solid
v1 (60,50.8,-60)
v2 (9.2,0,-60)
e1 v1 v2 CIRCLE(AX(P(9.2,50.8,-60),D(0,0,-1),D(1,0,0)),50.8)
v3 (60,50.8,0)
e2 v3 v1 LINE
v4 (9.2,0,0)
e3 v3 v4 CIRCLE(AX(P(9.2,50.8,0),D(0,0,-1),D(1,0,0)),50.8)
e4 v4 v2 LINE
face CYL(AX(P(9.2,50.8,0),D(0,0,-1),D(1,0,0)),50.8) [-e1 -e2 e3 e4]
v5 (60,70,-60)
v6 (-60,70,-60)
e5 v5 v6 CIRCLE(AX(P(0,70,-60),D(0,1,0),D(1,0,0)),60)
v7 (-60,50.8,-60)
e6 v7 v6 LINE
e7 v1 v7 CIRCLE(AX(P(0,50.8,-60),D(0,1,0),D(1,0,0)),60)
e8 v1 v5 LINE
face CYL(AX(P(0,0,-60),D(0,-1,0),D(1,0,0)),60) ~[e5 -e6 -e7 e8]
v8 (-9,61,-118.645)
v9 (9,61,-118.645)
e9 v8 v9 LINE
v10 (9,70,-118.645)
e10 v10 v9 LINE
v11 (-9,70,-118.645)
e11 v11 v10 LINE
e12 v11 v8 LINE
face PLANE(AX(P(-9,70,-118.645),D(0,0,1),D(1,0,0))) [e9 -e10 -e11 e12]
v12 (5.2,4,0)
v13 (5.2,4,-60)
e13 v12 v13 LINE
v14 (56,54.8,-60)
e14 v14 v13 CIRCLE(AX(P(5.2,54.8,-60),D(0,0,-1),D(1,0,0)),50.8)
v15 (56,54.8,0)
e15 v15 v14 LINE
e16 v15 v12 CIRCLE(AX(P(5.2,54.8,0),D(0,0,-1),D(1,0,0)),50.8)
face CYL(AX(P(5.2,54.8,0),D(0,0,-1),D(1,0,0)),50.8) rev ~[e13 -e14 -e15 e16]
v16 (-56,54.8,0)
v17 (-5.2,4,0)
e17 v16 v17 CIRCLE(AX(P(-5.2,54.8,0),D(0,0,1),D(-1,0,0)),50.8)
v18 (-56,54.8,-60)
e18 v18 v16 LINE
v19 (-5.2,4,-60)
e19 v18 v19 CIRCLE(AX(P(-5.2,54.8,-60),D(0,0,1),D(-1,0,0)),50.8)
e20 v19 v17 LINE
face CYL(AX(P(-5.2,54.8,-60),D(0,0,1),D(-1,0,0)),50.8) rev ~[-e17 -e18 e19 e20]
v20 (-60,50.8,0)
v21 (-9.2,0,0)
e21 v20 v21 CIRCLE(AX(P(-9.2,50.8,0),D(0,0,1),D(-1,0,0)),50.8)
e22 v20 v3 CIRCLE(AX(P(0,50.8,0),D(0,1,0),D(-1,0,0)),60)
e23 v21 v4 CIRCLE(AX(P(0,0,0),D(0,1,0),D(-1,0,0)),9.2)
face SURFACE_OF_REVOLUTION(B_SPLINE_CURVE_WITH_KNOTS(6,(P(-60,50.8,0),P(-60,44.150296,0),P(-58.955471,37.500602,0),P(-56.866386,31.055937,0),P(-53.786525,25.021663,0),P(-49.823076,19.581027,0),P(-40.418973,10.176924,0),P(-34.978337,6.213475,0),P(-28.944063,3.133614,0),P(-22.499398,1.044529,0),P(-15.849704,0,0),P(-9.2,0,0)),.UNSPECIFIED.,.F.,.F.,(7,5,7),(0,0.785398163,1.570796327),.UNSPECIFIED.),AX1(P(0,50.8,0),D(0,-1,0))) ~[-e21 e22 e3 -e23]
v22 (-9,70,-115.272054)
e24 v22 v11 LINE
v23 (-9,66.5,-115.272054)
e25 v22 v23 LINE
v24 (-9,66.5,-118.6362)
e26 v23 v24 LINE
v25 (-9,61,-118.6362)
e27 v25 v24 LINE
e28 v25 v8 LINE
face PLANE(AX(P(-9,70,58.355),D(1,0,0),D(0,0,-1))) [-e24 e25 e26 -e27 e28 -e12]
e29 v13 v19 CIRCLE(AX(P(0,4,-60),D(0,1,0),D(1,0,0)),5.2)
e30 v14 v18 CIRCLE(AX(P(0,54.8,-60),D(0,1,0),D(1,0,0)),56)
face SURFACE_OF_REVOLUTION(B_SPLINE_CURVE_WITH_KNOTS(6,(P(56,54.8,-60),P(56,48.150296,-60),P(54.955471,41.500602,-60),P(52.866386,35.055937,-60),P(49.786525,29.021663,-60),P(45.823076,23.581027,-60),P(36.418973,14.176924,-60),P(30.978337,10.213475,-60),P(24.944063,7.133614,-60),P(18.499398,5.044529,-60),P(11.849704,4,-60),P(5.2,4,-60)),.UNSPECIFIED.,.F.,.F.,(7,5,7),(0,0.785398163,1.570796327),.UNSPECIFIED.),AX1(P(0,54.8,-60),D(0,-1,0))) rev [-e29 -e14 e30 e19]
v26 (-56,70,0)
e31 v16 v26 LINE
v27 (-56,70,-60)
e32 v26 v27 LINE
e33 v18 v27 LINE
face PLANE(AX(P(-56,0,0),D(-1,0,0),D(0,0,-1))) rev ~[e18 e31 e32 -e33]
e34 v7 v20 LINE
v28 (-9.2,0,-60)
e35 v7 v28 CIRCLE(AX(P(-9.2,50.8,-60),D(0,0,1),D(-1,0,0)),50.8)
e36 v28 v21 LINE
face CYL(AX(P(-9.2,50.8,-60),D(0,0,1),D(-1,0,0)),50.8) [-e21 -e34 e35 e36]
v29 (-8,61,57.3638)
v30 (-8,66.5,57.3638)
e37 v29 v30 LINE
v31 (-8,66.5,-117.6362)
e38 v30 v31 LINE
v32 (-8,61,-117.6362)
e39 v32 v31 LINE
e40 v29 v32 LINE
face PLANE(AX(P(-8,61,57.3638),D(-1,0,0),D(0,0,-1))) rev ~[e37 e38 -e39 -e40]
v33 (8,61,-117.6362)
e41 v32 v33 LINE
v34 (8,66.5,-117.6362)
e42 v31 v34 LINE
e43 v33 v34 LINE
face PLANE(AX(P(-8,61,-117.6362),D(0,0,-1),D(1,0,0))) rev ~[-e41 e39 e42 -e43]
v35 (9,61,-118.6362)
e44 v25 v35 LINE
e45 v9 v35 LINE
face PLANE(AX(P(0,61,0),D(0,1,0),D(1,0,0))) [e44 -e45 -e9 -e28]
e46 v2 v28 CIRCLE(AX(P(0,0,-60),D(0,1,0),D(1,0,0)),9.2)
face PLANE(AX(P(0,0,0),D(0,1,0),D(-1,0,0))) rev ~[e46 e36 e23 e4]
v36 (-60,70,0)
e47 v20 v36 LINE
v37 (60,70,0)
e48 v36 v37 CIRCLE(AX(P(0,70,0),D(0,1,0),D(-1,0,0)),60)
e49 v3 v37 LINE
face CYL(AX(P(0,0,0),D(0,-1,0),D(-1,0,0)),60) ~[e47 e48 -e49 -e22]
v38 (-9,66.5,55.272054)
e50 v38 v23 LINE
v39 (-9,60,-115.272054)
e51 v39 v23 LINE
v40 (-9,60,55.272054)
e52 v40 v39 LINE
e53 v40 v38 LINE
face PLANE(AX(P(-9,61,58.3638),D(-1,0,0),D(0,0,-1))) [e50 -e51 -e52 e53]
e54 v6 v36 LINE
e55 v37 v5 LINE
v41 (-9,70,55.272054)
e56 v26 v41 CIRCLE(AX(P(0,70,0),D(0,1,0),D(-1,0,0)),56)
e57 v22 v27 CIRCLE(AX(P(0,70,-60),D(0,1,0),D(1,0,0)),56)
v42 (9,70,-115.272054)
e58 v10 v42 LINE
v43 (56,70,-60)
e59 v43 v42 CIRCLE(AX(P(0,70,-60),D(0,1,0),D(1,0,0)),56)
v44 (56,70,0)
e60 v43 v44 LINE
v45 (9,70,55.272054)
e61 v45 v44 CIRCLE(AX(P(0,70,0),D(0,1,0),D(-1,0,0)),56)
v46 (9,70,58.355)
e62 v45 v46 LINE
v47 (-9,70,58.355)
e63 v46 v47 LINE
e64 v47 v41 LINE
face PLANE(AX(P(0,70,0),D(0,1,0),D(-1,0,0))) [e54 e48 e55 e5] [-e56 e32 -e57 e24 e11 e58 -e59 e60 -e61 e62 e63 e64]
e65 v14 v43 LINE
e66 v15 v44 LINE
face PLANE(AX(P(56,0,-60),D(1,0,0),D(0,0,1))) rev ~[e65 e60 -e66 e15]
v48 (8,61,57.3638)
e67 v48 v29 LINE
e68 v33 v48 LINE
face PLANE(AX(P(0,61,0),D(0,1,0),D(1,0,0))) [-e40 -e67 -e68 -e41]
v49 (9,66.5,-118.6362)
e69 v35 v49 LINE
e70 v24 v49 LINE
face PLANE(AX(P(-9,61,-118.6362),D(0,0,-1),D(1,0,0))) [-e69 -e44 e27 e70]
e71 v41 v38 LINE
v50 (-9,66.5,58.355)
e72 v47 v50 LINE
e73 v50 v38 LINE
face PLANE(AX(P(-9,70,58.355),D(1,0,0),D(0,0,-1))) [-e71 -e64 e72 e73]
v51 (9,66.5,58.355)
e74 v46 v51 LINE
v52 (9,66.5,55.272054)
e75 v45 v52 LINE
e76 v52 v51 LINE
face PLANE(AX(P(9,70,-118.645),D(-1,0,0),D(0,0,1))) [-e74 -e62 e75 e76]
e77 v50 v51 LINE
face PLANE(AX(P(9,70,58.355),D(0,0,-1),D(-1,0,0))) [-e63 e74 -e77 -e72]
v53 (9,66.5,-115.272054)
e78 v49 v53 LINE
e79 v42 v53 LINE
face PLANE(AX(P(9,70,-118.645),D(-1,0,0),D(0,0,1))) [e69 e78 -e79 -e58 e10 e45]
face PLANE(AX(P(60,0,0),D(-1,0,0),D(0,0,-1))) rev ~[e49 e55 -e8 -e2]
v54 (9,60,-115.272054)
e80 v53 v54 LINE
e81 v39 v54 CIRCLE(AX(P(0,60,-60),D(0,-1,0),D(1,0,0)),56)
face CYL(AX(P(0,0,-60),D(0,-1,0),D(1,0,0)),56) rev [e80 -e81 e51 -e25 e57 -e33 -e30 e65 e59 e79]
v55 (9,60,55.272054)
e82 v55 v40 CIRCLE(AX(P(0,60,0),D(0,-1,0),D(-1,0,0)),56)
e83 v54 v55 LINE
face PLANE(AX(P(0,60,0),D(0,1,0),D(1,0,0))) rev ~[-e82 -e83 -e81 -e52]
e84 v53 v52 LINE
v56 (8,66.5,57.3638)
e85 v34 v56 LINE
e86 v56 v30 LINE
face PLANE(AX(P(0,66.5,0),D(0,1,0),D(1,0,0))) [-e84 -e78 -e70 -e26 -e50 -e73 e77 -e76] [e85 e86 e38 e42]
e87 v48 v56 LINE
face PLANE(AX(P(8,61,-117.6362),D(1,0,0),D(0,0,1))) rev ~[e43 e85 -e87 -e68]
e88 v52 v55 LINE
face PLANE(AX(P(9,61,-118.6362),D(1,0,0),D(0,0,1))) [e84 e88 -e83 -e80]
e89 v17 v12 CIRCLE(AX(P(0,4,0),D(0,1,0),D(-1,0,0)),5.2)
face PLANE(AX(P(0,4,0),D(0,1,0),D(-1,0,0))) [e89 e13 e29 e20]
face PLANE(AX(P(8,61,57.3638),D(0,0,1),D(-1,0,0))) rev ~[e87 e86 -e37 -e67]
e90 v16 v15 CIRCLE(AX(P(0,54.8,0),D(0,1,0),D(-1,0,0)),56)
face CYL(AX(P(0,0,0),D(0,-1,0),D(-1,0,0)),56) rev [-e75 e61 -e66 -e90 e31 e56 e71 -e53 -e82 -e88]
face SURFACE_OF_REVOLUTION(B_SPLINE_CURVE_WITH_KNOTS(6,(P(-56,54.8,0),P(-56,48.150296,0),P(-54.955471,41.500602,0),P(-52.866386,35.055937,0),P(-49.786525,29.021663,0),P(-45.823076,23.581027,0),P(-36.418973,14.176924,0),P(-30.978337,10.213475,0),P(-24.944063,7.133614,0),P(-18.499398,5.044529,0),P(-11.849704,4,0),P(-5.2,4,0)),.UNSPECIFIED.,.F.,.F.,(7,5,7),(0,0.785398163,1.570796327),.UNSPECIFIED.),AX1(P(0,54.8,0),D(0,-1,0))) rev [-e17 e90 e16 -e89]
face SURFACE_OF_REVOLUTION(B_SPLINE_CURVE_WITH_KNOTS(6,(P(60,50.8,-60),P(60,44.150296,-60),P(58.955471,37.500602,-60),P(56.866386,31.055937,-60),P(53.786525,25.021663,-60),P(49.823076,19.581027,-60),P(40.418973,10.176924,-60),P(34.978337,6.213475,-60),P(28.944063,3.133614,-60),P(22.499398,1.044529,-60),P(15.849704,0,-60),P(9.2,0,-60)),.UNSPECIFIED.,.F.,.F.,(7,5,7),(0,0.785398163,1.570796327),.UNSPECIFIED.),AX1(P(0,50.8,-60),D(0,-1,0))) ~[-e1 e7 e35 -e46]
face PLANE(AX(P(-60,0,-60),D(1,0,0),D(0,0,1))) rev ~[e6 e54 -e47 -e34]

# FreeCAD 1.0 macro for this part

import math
import FreeCAD as App
import Part
import Sketcher

V = App.Vector


def edges_at(feature, points):
    """Names of the edges that pass closest to the given points."""
    edges = feature.Shape.Edges
    near = lambda p: min(range(len(edges)), key=lambda i: edges[i].distToShape(Part.Vertex(*p))[0])
    return sorted({f"Edge{near(p) + 1}" for p in points})


def add_polygon(sketch, points):
    """Adds a closed chain of lines whose ends are joined by coincident constraints."""
    first, n = sketch.GeometryCount, len(points)
    for a, b in zip(points, points[1:] + points[:1]):
        sketch.addGeometry(Part.LineSegment(App.Vector(*a, 0), App.Vector(*b, 0)), False)
    for i in range(n):
        sketch.addConstraint(Sketcher.Constraint("Coincident", first + i, 2, first + (i + 1) % n, 1))

doc = App.newDocument("Part")
body = doc.addObject("PartDesign::Body", "Body")

sketch1 = body.newObject("Sketcher::SketchObject", "Sketch")
sketch1.AttachmentSupport = (doc.getObject("XZ_Plane"), [""])
sketch1.MapMode = "FlatFace"
sketch1.addGeometry(Part.ArcOfCircle(Part.Circle(V(0, 0, 0), V(0, 0, 1), 60), math.radians(0), math.radians(180)), False)
sketch1.addGeometry(Part.LineSegment(V(60, 0, 0), V(60, -60, 0)), False)
sketch1.addGeometry(Part.ArcOfCircle(Part.Circle(V(0, -60, 0), V(0, 0, 1), 60), math.radians(180), math.radians(360)), False)
sketch1.addGeometry(Part.LineSegment(V(-60, -60, 0), V(-60, 0, 0)), False)
sketch1.addGeometry(Part.ArcOfCircle(Part.Circle(V(0, 0, 0), V(0, 0, 1), 56), math.radians(0), math.radians(180)), False)
sketch1.addGeometry(Part.LineSegment(V(-56, 0, 0), V(-56, -60, 0)), False)
sketch1.addGeometry(Part.ArcOfCircle(Part.Circle(V(0, -60, 0), V(0, 0, 1), 56), math.radians(180), math.radians(360)), False)
sketch1.addGeometry(Part.LineSegment(V(56, -60, 0), V(56, 0, 0)), False)
sketch1.addConstraint(Sketcher.Constraint("Tangent", 0, 1, 1, 1))
sketch1.addConstraint(Sketcher.Constraint("Tangent", 1, 2, 2, 2))
sketch1.addConstraint(Sketcher.Constraint("Tangent", 2, 1, 3, 1))
sketch1.addConstraint(Sketcher.Constraint("Tangent", 3, 2, 0, 2))
sketch1.addConstraint(Sketcher.Constraint("Tangent", 4, 2, 5, 1))
sketch1.addConstraint(Sketcher.Constraint("Tangent", 5, 2, 6, 1))
sketch1.addConstraint(Sketcher.Constraint("Tangent", 6, 2, 7, 1))
sketch1.addConstraint(Sketcher.Constraint("Tangent", 7, 2, 4, 1))
sketch1.addConstraint(Sketcher.Constraint("Vertical", 1))
sketch1.addConstraint(Sketcher.Constraint("Vertical", 3))
sketch1.addConstraint(Sketcher.Constraint("Vertical", 5))
sketch1.addConstraint(Sketcher.Constraint("Vertical", 7))
sketch1.addConstraint(Sketcher.Constraint("Coincident", 0, 3, -1, 1))
sketch1.addConstraint(Sketcher.Constraint("Coincident", 4, 3, -1, 1))
sketch1.addConstraint(Sketcher.Constraint("Horizontal", 6, 3, 1, 2))
sketch1.addConstraint(Sketcher.Constraint("Radius", 0, 60.0))
sketch1.addConstraint(Sketcher.Constraint("DistanceY", 1, 2, 1, 1, 60.0))
sketch1.addConstraint(Sketcher.Constraint("Radius", 4, 56.0))
pad1 = body.newObject("PartDesign::Pad", "Pad")
pad1.Profile = sketch1
pad1.Length = 70
pad1.Reversed = True

sketch2 = body.newObject("Sketcher::SketchObject", "Sketch001")
sketch2.AttachmentSupport = (doc.getObject("XZ_Plane"), [""])
sketch2.MapMode = "FlatFace"
sketch2.addGeometry(Part.LineSegment(V(-56, -60, 0), V(-56, 0, 0)), False)
sketch2.addGeometry(Part.ArcOfCircle(Part.Circle(V(0, 0, 0), V(0, 0, 1), 56), math.radians(0), math.radians(180)), False)
sketch2.addGeometry(Part.LineSegment(V(56, 0, 0), V(56, -60, 0)), False)
sketch2.addGeometry(Part.ArcOfCircle(Part.Circle(V(0, -60, 0), V(0, 0, 1), 56), math.radians(180), math.radians(360)), False)
sketch2.addConstraint(Sketcher.Constraint("Tangent", 0, 2, 1, 2))
sketch2.addConstraint(Sketcher.Constraint("Tangent", 1, 1, 2, 1))
sketch2.addConstraint(Sketcher.Constraint("Tangent", 2, 2, 3, 2))
sketch2.addConstraint(Sketcher.Constraint("Tangent", 3, 1, 0, 1))
sketch2.addConstraint(Sketcher.Constraint("Vertical", 0))
sketch2.addConstraint(Sketcher.Constraint("Vertical", 2))
sketch2.addConstraint(Sketcher.Constraint("Coincident", 1, 3, -1, 1))
sketch2.addConstraint(Sketcher.Constraint("DistanceY", 0, 1, 0, 2, 60.0))
sketch2.addConstraint(Sketcher.Constraint("Radius", 1, 56.0))
pad2 = body.newObject("PartDesign::Pad", "Pad001")
pad2.Profile = sketch2
pad2.Length = 4
pad2.Reversed = True
doc.recompute()

fillet = body.newObject("PartDesign::Fillet", "Fillet")
fillet.Base = (pad2, edges_at(pad2, [
    (0, 4, 56),
    (-56, 4, -30),
    (0, 4, -116),
    (56, 4, -30),
    (0, 0, 60),
    (60, 0, -30),
    (0, 0, -120),
    (-60, 0, -30),
]))
fillet.Radius = 50.8

sketch3 = body.newObject("Sketcher::SketchObject", "Sketch002")
sketch3.AttachmentSupport = (doc.getObject("XZ_Plane"), [""])
sketch3.MapMode = "FlatFace"
sketch3.AttachmentOffset = App.Placement(V(0, 0, -70), App.Rotation())
add_polygon(sketch3, [(9, -119), (-9, -119), (-9, 58), (9, 58)])
sketch3.addConstraint(Sketcher.Constraint("Horizontal", 0))
sketch3.addConstraint(Sketcher.Constraint("Vertical", 1))
sketch3.addConstraint(Sketcher.Constraint("Horizontal", 2))
sketch3.addConstraint(Sketcher.Constraint("Vertical", 3))
sketch3.addConstraint(Sketcher.Constraint("DistanceX", 0, 2, 0, 1, 18.0))
sketch3.addConstraint(Sketcher.Constraint("DistanceY", 1, 1, 1, 2, 177.0))
sketch3.addConstraint(Sketcher.Constraint("DistanceX", 0, 2, -1, 1, 9.0))
sketch3.addConstraint(Sketcher.Constraint("DistanceY", 0, 2, -1, 1, 118.645))
pad3 = body.newObject("PartDesign::Pad", "Pad002")
pad3.Profile = sketch3
pad3.Length = 10

sketch4 = body.newObject("Sketcher::SketchObject", "Sketch003")
sketch4.AttachmentSupport = (doc.getObject("XZ_Plane"), [""])
sketch4.MapMode = "FlatFace"
sketch4.AttachmentOffset = App.Placement(V(0, 0, -70), App.Rotation())
add_polygon(sketch4, [(9, -119), (-9, -119), (-9, 58), (9, 58)])
sketch4.addConstraint(Sketcher.Constraint("Horizontal", 0))
sketch4.addConstraint(Sketcher.Constraint("Vertical", 1))
sketch4.addConstraint(Sketcher.Constraint("Horizontal", 2))
sketch4.addConstraint(Sketcher.Constraint("Vertical", 3))
sketch4.addConstraint(Sketcher.Constraint("DistanceX", 0, 2, 0, 1, 18.0))
sketch4.addConstraint(Sketcher.Constraint("DistanceY", 1, 1, 1, 2, 177.0))
sketch4.addConstraint(Sketcher.Constraint("DistanceX", 0, 2, -1, 1, 9.0))
sketch4.addConstraint(Sketcher.Constraint("DistanceY", 0, 2, -1, 1, 118.645))
pocket1 = body.newObject("PartDesign::Pocket", "Pocket")
pocket1.Profile = sketch4
pocket1.Length = 9
pocket1.Reversed = True

sketch5 = body.newObject("Sketcher::SketchObject", "Sketch004")
sketch5.AttachmentSupport = (doc.getObject("XZ_Plane"), [""])
sketch5.MapMode = "FlatFace"
sketch5.AttachmentOffset = App.Placement(V(0, 0, -61), App.Rotation())
add_polygon(sketch5, [(9, -119), (-9, -119), (-9, 58), (9, 58)])
add_polygon(sketch5, [(-8, 57), (-8, -118), (8, -118), (8, 57)])
sketch5.addConstraint(Sketcher.Constraint("Horizontal", 0))
sketch5.addConstraint(Sketcher.Constraint("Vertical", 1))
sketch5.addConstraint(Sketcher.Constraint("Horizontal", 2))
sketch5.addConstraint(Sketcher.Constraint("Vertical", 3))
sketch5.addConstraint(Sketcher.Constraint("Vertical", 4))
sketch5.addConstraint(Sketcher.Constraint("Horizontal", 5))
sketch5.addConstraint(Sketcher.Constraint("Vertical", 6))
sketch5.addConstraint(Sketcher.Constraint("Horizontal", 7))
sketch5.addConstraint(Sketcher.Constraint("DistanceX", 0, 2, 0, 1, 18.0))
sketch5.addConstraint(Sketcher.Constraint("DistanceY", 1, 1, 1, 2, 177.0))
sketch5.addConstraint(Sketcher.Constraint("DistanceX", 0, 2, -1, 1, 9.0))
sketch5.addConstraint(Sketcher.Constraint("DistanceX", 0, 2, 4, 2, 1.0))
sketch5.addConstraint(Sketcher.Constraint("DistanceY", 0, 2, 4, 2, 1.0))
sketch5.addConstraint(Sketcher.Constraint("DistanceX", 5, 2, 3, 2, 1.0))
sketch5.addConstraint(Sketcher.Constraint("DistanceY", 6, 2, 2, 2, 1.0))
sketch5.addConstraint(Sketcher.Constraint("DistanceY", 0, 2, -1, 1, 118.6362))
pad4 = body.newObject("PartDesign::Pad", "Pad003")
pad4.Profile = sketch5
pad4.Length = 5.5
pad4.Reversed = True

doc.recompute()
